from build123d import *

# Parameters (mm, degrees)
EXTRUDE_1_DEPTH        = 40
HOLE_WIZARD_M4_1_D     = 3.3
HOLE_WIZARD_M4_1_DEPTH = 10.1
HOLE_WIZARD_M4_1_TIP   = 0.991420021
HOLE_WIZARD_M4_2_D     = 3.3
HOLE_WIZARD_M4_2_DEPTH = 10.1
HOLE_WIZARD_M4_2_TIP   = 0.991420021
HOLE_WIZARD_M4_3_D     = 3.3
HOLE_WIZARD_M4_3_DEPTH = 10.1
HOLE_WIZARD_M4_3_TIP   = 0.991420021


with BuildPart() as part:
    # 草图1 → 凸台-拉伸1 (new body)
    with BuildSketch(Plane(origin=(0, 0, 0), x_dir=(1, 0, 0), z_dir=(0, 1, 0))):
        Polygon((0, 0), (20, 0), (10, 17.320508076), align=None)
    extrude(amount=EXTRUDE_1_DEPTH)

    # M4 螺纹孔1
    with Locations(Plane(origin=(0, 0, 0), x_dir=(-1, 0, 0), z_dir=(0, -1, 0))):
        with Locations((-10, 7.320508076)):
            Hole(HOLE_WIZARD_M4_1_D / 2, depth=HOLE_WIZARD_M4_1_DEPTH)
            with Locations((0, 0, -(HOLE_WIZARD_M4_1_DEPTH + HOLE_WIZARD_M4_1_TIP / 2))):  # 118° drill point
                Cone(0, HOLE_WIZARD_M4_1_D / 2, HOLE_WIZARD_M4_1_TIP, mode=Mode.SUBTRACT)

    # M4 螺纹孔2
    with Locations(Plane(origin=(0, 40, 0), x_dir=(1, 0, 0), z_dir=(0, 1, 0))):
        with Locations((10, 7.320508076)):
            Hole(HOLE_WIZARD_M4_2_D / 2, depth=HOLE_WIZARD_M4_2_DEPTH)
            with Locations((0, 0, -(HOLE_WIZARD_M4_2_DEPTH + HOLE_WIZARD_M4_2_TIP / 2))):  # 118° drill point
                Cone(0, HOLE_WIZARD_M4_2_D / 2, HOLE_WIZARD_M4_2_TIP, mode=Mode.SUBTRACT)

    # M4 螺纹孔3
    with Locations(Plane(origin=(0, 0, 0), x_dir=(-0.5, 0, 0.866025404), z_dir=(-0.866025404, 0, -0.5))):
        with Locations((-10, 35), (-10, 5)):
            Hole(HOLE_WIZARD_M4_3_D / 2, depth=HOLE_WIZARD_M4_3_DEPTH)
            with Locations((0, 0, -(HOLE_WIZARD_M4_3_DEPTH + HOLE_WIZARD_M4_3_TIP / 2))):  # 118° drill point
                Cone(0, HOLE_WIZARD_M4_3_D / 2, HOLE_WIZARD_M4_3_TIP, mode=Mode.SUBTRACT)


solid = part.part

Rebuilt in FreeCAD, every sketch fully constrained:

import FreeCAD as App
import Part
import Sketcher

V = App.Vector
Q = App.Units.Quantity

doc = App.newDocument("Part")
params = doc.addObject("Spreadsheet::Sheet", "Params")
for row, (alias, value) in enumerate([
    ("sketch1_width", "20 mm"),
    ("pad1_length", "40 mm"),
    ("sketch2_diameter", "3.3 mm"),
    ("hole_diameter", "3.3 mm"),
    ("hole_depth", "10.1 mm"),
    ("sketch3_diameter", "3.3 mm"),
    ("hole2_diameter", "3.3 mm"),
    ("hole2_depth", "10.1 mm"),
    ("sketch4_diameter", "3.3 mm"),
    ("hole3_diameter", "3.3 mm"),
    ("hole3_depth", "10.1 mm"),
], start=1):
    params.set(f"A{row}", alias)
    params.set(f"B{row}", "=" + value)
    params.setAlias(f"B{row}", alias)

body = doc.addObject("PartDesign::Body", "Body")

# Sketch on XZ plane
sketch1 = body.newObject("Sketcher::SketchObject", "Sketch")
sketch1.AttachmentSupport = (doc.getObject("XZ_Plane"), [""])
sketch1.MapMode = "FlatFace"
sketch1.addGeometry([
    Part.LineSegment(V(0, 0, 0), V(20, 0, 0)),
    Part.LineSegment(V(20, 0, 0), V(10, -17, 0)),
    Part.LineSegment(V(10, -17, 0), V(0, 0, 0)),
], False)
sketch1.addConstraint([
    Sketcher.Constraint("Coincident", 0, 2, 1, 1),
    Sketcher.Constraint("Coincident", 1, 2, 2, 1),
    Sketcher.Constraint("Coincident", 2, 2, 0, 1),
    Sketcher.Constraint("Horizontal", 0),
    Sketcher.Constraint("Coincident", 2, 2, -1, 1),
    Sketcher.Constraint("Equal", 1, 2),
    Sketcher.Constraint("DistanceX", 0, 1, 0, 2, 20.0),
    Sketcher.Constraint("Angle", 1, Q("-120 deg")),
])
sketch1.setExpression("Constraints[6]", "Params.sketch1_width")
pad1 = body.newObject("PartDesign::Pad", "Pad")
pad1.Profile = sketch1
pad1.setExpression("Length", "Params.pad1_length")
pad1.Reversed = True

# Sketch on XZ plane
sketch2 = body.newObject("Sketcher::SketchObject", "Sketch001")
sketch2.AttachmentSupport = (doc.getObject("XZ_Plane"), [""])
sketch2.MapMode = "FlatFace"
sketch2.addGeometry(Part.Circle(V(10, -7.3, 0), V(0, 0, 1), 1.6), False)
sketch2.addConstraint([
    Sketcher.Constraint("Diameter", 0, 3.3),
    Sketcher.Constraint("DistanceX", -1, 1, 0, 3, 10.0),
    Sketcher.Constraint("DistanceY", 0, 3, -1, 1, 7.320508),
])
sketch2.setExpression("Constraints[0]", "Params.sketch2_diameter")
doc.recompute()
hole = body.newObject("PartDesign::Hole", "Hole")
hole.Profile = sketch2
hole.ThreadType = "None"
hole.setExpression("Diameter", "Params.hole_diameter")
hole.DepthType = "Dimension"
hole.setExpression("Depth", "Params.hole_depth")
hole.DrillPoint = "Angled"
hole.DrillPointAngle = 118

# Sketch on XZ plane
sketch3 = body.newObject("Sketcher::SketchObject", "Sketch002")
sketch3.AttachmentSupport = (doc.getObject("XZ_Plane"), [""])
sketch3.MapMode = "FlatFace"
sketch3.AttachmentOffset = App.Placement(V(0, 0, -40), App.Rotation())
sketch3.addGeometry(Part.Circle(V(10, -7.3, 0), V(0, 0, 1), 1.6), False)
sketch3.addConstraint([
    Sketcher.Constraint("Diameter", 0, 3.3),
    Sketcher.Constraint("DistanceX", -1, 1, 0, 3, 10.0),
    Sketcher.Constraint("DistanceY", 0, 3, -1, 1, 7.320508),
])
sketch3.setExpression("Constraints[0]", "Params.sketch3_diameter")
doc.recompute()
hole2 = body.newObject("PartDesign::Hole", "Hole001")
hole2.Profile = sketch3
hole2.ThreadType = "None"
hole2.setExpression("Diameter", "Params.hole2_diameter")
hole2.DepthType = "Dimension"
hole2.setExpression("Depth", "Params.hole2_depth")
hole2.DrillPoint = "Angled"
hole2.DrillPointAngle = 118
hole2.Reversed = True

# Sketch on an angled plane
sketch4 = body.newObject("Sketcher::SketchObject", "Sketch003")
sketch4.Placement = App.Placement(V(0, 0, 0), App.Rotation(V(-0.5, 0, 0.866025404), V(0, 1, 0), V(-0.866025404, 0, -0.5), "ZXY"))
sketch4.addGeometry([
    Part.Circle(V(-10, 35, 0), V(0, 0, 1), 1.6),
    Part.Circle(V(-10, 5, 0), V(0, 0, 1), 1.6),
], False)
sketch4.addConstraint([
    Sketcher.Constraint("Equal", 0, 1),
    Sketcher.Constraint("Vertical", 0, 3, 1, 3),
    Sketcher.Constraint("Diameter", 0, 3.3),
    Sketcher.Constraint("DistanceX", 0, 3, -1, 1, 10.0),
    Sketcher.Constraint("DistanceY", -1, 1, 0, 3, 35.0),
    Sketcher.Constraint("DistanceY", -1, 1, 1, 3, 5.0),
])
sketch4.setExpression("Constraints[2]", "Params.sketch4_diameter")
doc.recompute()
hole3 = body.newObject("PartDesign::Hole", "Hole002")
hole3.Profile = sketch4
hole3.ThreadType = "None"
hole3.setExpression("Diameter", "Params.hole3_diameter")
hole3.DepthType = "Dimension"
hole3.setExpression("Depth", "Params.hole3_depth")
hole3.DrillPoint = "Angled"
hole3.DrillPointAngle = 118

doc.recompute()
